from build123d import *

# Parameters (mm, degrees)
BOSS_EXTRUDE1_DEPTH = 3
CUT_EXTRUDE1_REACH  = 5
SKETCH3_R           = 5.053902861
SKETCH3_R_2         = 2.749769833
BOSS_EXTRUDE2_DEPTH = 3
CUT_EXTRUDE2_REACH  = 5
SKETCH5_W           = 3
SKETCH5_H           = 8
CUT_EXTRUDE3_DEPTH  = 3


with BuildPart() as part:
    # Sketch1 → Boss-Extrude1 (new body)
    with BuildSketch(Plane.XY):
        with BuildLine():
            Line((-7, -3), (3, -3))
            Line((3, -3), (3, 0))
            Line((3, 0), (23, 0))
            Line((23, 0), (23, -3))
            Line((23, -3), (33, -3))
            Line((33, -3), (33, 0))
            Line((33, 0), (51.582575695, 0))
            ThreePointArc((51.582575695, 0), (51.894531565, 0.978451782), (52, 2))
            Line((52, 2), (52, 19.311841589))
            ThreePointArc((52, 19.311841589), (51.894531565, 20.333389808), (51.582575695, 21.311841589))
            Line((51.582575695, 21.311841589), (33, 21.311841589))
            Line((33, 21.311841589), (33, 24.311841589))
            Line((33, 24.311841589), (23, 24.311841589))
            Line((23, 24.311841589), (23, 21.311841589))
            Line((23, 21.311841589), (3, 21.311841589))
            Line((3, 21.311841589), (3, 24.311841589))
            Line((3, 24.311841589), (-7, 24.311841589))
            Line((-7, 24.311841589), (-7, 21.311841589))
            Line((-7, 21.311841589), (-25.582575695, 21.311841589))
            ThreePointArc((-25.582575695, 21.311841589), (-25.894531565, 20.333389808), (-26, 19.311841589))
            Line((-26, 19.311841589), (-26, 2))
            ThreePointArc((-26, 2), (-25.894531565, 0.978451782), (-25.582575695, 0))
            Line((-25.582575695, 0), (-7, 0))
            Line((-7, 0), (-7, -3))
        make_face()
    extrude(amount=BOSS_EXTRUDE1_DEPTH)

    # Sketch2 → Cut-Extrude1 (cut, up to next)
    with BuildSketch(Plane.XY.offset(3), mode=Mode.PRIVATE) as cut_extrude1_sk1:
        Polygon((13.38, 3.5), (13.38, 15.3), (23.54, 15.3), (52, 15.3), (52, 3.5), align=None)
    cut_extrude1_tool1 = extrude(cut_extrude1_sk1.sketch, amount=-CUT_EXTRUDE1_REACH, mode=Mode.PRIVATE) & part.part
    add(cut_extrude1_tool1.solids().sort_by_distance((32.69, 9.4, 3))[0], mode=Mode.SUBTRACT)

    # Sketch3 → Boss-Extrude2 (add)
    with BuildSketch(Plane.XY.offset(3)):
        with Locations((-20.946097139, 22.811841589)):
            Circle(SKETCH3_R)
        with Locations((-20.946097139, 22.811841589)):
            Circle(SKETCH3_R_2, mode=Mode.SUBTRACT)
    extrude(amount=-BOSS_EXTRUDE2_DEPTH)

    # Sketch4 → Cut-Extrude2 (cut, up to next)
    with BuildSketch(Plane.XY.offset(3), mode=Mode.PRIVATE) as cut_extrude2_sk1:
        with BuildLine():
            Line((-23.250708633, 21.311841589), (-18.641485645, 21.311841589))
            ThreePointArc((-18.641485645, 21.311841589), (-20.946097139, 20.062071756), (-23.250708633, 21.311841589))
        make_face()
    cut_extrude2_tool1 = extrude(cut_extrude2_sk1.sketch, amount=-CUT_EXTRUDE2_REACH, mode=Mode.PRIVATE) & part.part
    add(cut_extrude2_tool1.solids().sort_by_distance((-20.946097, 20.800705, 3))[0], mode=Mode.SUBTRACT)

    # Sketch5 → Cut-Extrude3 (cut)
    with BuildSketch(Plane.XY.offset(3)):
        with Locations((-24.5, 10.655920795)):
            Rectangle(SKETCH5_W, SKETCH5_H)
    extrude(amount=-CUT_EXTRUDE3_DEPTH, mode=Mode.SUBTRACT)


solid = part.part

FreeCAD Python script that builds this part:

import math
import FreeCAD as App
import Part
import Sketcher

V = App.Vector
Q = App.Units.Quantity

doc = App.newDocument("Part")
body = doc.addObject("PartDesign::Body", "Body")

# Sketch on XY plane
sketch1 = body.newObject("Sketcher::SketchObject", "Sketch")
sketch1.AttachmentSupport = (doc.getObject("XY_Plane"), [""])
sketch1.MapMode = "FlatFace"
sketch1.addGeometry([
    Part.LineSegment(V(-7, -3, 0), V(3, -3, 0)),  # 0
    Part.LineSegment(V(3, -3, 0), V(3, 0, 0)),  # 1
    Part.LineSegment(V(3, 0, 0), V(23, 0, 0)),  # 2
    Part.LineSegment(V(23, 0, 0), V(23, -3, 0)),  # 3
    Part.LineSegment(V(23, -3, 0), V(33, -3, 0)),  # 4
    Part.LineSegment(V(33, -3, 0), V(33, 0, 0)),  # 5
    Part.LineSegment(V(33, 0, 0), V(51.6, 0, 0)),  # 6
    Part.ArcOfCircle(Part.Circle(V(47, 2, 0), V(0, 0, 1), 5), math.radians(-24), math.radians(0)),  # 7
    Part.LineSegment(V(52, 2, 0), V(52, 19.3, 0)),  # 8
    Part.ArcOfCircle(Part.Circle(V(47, 19.3, 0), V(0, 0, 1), 5), math.radians(0), math.radians(24)),  # 9
    Part.LineSegment(V(51.6, 21.3, 0), V(33, 21.3, 0)),  # 10
    Part.LineSegment(V(33, 21.3, 0), V(33, 24.3, 0)),  # 11
    Part.LineSegment(V(33, 24.3, 0), V(23, 24.3, 0)),  # 12
    Part.LineSegment(V(23, 24.3, 0), V(23, 21.3, 0)),  # 13
    Part.LineSegment(V(23, 21.3, 0), V(3, 21.3, 0)),  # 14
    Part.LineSegment(V(3, 21.3, 0), V(3, 24.3, 0)),  # 15
    Part.LineSegment(V(3, 24.3, 0), V(-7, 24.3, 0)),  # 16
    Part.LineSegment(V(-7, 24.3, 0), V(-7, 21.3, 0)),  # 17
    Part.LineSegment(V(-7, 21.3, 0), V(-25.6, 21.3, 0)),  # 18
    Part.ArcOfCircle(Part.Circle(V(-21, 19.3, 0), V(0, 0, 1), 5), math.radians(156), math.radians(180)),  # 19
    Part.LineSegment(V(-26, 19.3, 0), V(-26, 2, 0)),  # 20
    Part.ArcOfCircle(Part.Circle(V(-21, 2, 0), V(0, 0, 1), 5), math.radians(180), math.radians(204)),  # 21
    Part.LineSegment(V(-25.6, 0, 0), V(-7, 0, 0)),  # 22
    Part.LineSegment(V(-7, 0, 0), V(-7, -3, 0)),  # 23
], False)
sketch1.addConstraint([
    Sketcher.Constraint("Coincident", 0, 2, 1, 1),
    Sketcher.Constraint("Coincident", 1, 2, 2, 1),
    Sketcher.Constraint("Coincident", 2, 2, 3, 1),
    Sketcher.Constraint("Coincident", 3, 2, 4, 1),
    Sketcher.Constraint("Coincident", 4, 2, 5, 1),
    Sketcher.Constraint("Coincident", 5, 2, 6, 1),
    Sketcher.Constraint("Coincident", 6, 2, 7, 1),
    Sketcher.Constraint("Tangent", 7, 2, 8, 1),
    Sketcher.Constraint("Tangent", 8, 2, 9, 1),
    Sketcher.Constraint("Coincident", 9, 2, 10, 1),
    Sketcher.Constraint("Coincident", 10, 2, 11, 1),
    Sketcher.Constraint("Coincident", 11, 2, 12, 1),
    Sketcher.Constraint("Coincident", 12, 2, 13, 1),
    Sketcher.Constraint("Coincident", 13, 2, 14, 1),
    Sketcher.Constraint("Coincident", 14, 2, 15, 1),
    Sketcher.Constraint("Coincident", 15, 2, 16, 1),
    Sketcher.Constraint("Coincident", 16, 2, 17, 1),
    Sketcher.Constraint("Coincident", 17, 2, 18, 1),
    Sketcher.Constraint("Coincident", 18, 2, 19, 1),
    Sketcher.Constraint("Tangent", 19, 2, 20, 1),
    Sketcher.Constraint("Tangent", 20, 2, 21, 1),
    Sketcher.Constraint("Coincident", 21, 2, 22, 1),
    Sketcher.Constraint("Coincident", 22, 2, 23, 1),
    Sketcher.Constraint("Coincident", 23, 2, 0, 1),
    Sketcher.Constraint("Horizontal", 0),
    Sketcher.Constraint("Vertical", 1),
    Sketcher.Constraint("Horizontal", 2),
    Sketcher.Constraint("Vertical", 3),
    Sketcher.Constraint("Horizontal", 4),
    Sketcher.Constraint("Vertical", 5),
    Sketcher.Constraint("Horizontal", 6),
    Sketcher.Constraint("Vertical", 8),
    Sketcher.Constraint("Horizontal", 10),
    Sketcher.Constraint("Vertical", 11),
    Sketcher.Constraint("Horizontal", 12),
    Sketcher.Constraint("Vertical", 13),
    Sketcher.Constraint("Horizontal", 14),
    Sketcher.Constraint("Vertical", 15),
    Sketcher.Constraint("Horizontal", 16),
    Sketcher.Constraint("Vertical", 17),
    Sketcher.Constraint("Horizontal", 18),
    Sketcher.Constraint("Vertical", 20),
    Sketcher.Constraint("Horizontal", 22),
    Sketcher.Constraint("Vertical", 23),
    Sketcher.Constraint("Equal", 7, 9),
    Sketcher.Constraint("Equal", 9, 19),
    Sketcher.Constraint("Equal", 19, 21),
    Sketcher.Constraint("PointOnObject", 1, 2, -1),
    Sketcher.Constraint("PointOnObject", 5, 2, -1),
    Sketcher.Constraint("PointOnObject", 21, 2, -1),
    Sketcher.Constraint("Horizontal", 9, 3, 19, 3),
    Sketcher.Constraint("Horizontal", 7, 3, 21, 3),
    Sketcher.Constraint("Horizontal", 0, 2, 3, 2),
    Sketcher.Constraint("Horizontal", 10, 2, 13, 2),
    Sketcher.Constraint("Horizontal", 12, 2, 15, 2),
    Sketcher.Constraint("Horizontal", 14, 2, 17, 2),
    Sketcher.Constraint("Vertical", 6, 2, 9, 2),
    Sketcher.Constraint("Vertical", 5, 2, 10, 2),
    Sketcher.Constraint("Vertical", 3, 2, 12, 2),
    Sketcher.Constraint("Vertical", 1, 2, 14, 2),
    Sketcher.Constraint("Vertical", 17, 2, 22, 2),
    Sketcher.Constraint("Equal", 0, 4),
    Sketcher.Constraint("Equal", 10, 18),
    Sketcher.Constraint("Equal", 5, 11),
    Sketcher.Constraint("Radius", 7, Q("5 mm")),
    Sketcher.Constraint("DistanceX", 0, 1, 0, 2, Q("10 mm")),
    Sketcher.Constraint("DistanceX", 2, 1, 2, 2, Q("20 mm")),
    Sketcher.Constraint("DistanceY", 1, 1, 1, 2, Q("3 mm")),
    Sketcher.Constraint("DistanceX", -1, 1, 7, 3, Q("47 mm")),
    Sketcher.Constraint("DistanceY", -1, 1, 7, 3, Q("2 mm")),
    Sketcher.Constraint("DistanceX", 19, 3, -1, 1, Q("21 mm")),
    Sketcher.Constraint("DistanceY", 8, 1, 8, 2, Q("17.311842 mm")),
])
pad1 = body.newObject("PartDesign::Pad", "Pad")
pad1.Profile = sketch1
pad1.Length = 3

# Sketch on XY plane
sketch2 = body.newObject("Sketcher::SketchObject", "Sketch001")
sketch2.AttachmentSupport = (doc.getObject("XY_Plane"), [""])
sketch2.MapMode = "FlatFace"
sketch2.AttachmentOffset = App.Placement(V(0, 0, 3), App.Rotation())
sketch2.addGeometry([
    Part.LineSegment(V(13, 15, 0), V(13, 4, 0)),
    Part.LineSegment(V(13, 4, 0), V(52, 4, 0)),
    Part.LineSegment(V(52, 4, 0), V(52, 15, 0)),
    Part.LineSegment(V(52, 15, 0), V(13, 15, 0)),
], False)
sketch2.addConstraint([
    Sketcher.Constraint("Coincident", 0, 2, 1, 1),
    Sketcher.Constraint("Coincident", 1, 2, 2, 1),
    Sketcher.Constraint("Coincident", 2, 2, 3, 1),
    Sketcher.Constraint("Coincident", 3, 2, 0, 1),
    Sketcher.Constraint("Vertical", 0),
    Sketcher.Constraint("Horizontal", 1),
    Sketcher.Constraint("Vertical", 2),
    Sketcher.Constraint("Horizontal", 3),
    Sketcher.Constraint("DistanceY", 0, 2, 0, 1, Q("11.8 mm")),
    Sketcher.Constraint("DistanceX", -1, 1, 1, 2, Q("52 mm")),
    Sketcher.Constraint("DistanceX", 1, 1, 1, 2, Q("38.62 mm")),
    Sketcher.Constraint("DistanceY", -1, 1, 0, 2, Q("3.5 mm")),
])
pocket1 = body.newObject("PartDesign::Pocket", "Pocket")
pocket1.Profile = sketch2
pocket1.Type = "UpToFirst"

# Sketch on XY plane
sketch3 = body.newObject("Sketcher::SketchObject", "Sketch002")
sketch3.AttachmentSupport = (doc.getObject("XY_Plane"), [""])
sketch3.MapMode = "FlatFace"
sketch3.AttachmentOffset = App.Placement(V(0, 0, 3), App.Rotation())
sketch3.addGeometry([
    Part.Circle(V(-20.9, 22.8, 0), V(0, 0, 1), 5.1),
    Part.Circle(V(-20.9, 22.8, 0), V(0, 0, 1), 2.7),
], False)
sketch3.addConstraint([
    Sketcher.Constraint("Coincident", 1, 3, 0, 3),
    Sketcher.Constraint("Diameter", 1, Q("5.49954 mm")),
    Sketcher.Constraint("Diameter", 0, Q("10.107806 mm")),
    Sketcher.Constraint("DistanceY", -1, 1, 0, 3, Q("22.811842 mm")),
    Sketcher.Constraint("DistanceX", 0, 3, -1, 1, Q("20.946097 mm")),
])
pad2 = body.newObject("PartDesign::Pad", "Pad001")
pad2.Profile = sketch3
pad2.Length = 3
pad2.Reversed = True

# Sketch on XY plane
sketch4 = body.newObject("Sketcher::SketchObject", "Sketch003")
sketch4.AttachmentSupport = (doc.getObject("XY_Plane"), [""])
sketch4.MapMode = "FlatFace"
sketch4.AttachmentOffset = App.Placement(V(0, 0, 3), App.Rotation())
sketch4.addGeometry([
    Part.LineSegment(V(-18.6, 21.3, 0), V(-23.3, 21.3, 0)),
    Part.ArcOfCircle(Part.Circle(V(-20.9, 22.8, 0), V(0, 0, 1), 2.7), math.radians(-147), math.radians(-33)),
], False)
sketch4.addConstraint([
    Sketcher.Constraint("Coincident", 0, 1, 1, 2),
    Sketcher.Constraint("Coincident", 1, 1, 0, 2),
    Sketcher.Constraint("Horizontal", 0),
    Sketcher.Constraint("DistanceY", 0, 1, 1, 3, Q("1.5 mm")),
    Sketcher.Constraint("Radius", 1, Q("2.74977 mm")),
    Sketcher.Constraint("DistanceY", -1, 1, 1, 3, Q("22.811842 mm")),
    Sketcher.Constraint("DistanceX", 1, 1, -1, 1, Q("23.250709 mm")),
])
pocket2 = body.newObject("PartDesign::Pocket", "Pocket001")
pocket2.Profile = sketch4
pocket2.Type = "UpToFirst"

# Sketch on XY plane
sketch5 = body.newObject("Sketcher::SketchObject", "Sketch004")
sketch5.AttachmentSupport = (doc.getObject("XY_Plane"), [""])
sketch5.MapMode = "FlatFace"
sketch5.AttachmentOffset = App.Placement(V(0, 0, 3), App.Rotation())
sketch5.addGeometry([
    Part.LineSegment(V(-26, 14.7, 0), V(-26, 6.7, 0)),
    Part.LineSegment(V(-26, 6.7, 0), V(-23, 6.7, 0)),
    Part.LineSegment(V(-23, 6.7, 0), V(-23, 14.7, 0)),
    Part.LineSegment(V(-23, 14.7, 0), V(-26, 14.7, 0)),
], False)
sketch5.addConstraint([
    Sketcher.Constraint("Coincident", 0, 2, 1, 1),
    Sketcher.Constraint("Coincident", 1, 2, 2, 1),
    Sketcher.Constraint("Coincident", 2, 2, 3, 1),
    Sketcher.Constraint("Coincident", 3, 2, 0, 1),
    Sketcher.Constraint("Vertical", 0),
    Sketcher.Constraint("Horizontal", 1),
    Sketcher.Constraint("Vertical", 2),
    Sketcher.Constraint("Horizontal", 3),
    Sketcher.Constraint("DistanceX", 1, 1, 1, 2, Q("3 mm")),
    Sketcher.Constraint("DistanceY", 0, 2, 0, 1, Q("8 mm")),
    Sketcher.Constraint("DistanceX", 0, 2, -1, 1, Q("26 mm")),
    Sketcher.Constraint("DistanceY", -1, 1, 0, 2, Q("6.655921 mm")),
])
pocket3 = body.newObject("PartDesign::Pocket", "Pocket002")
pocket3.Profile = sketch5
pocket3.Length = 3

doc.recompute()
